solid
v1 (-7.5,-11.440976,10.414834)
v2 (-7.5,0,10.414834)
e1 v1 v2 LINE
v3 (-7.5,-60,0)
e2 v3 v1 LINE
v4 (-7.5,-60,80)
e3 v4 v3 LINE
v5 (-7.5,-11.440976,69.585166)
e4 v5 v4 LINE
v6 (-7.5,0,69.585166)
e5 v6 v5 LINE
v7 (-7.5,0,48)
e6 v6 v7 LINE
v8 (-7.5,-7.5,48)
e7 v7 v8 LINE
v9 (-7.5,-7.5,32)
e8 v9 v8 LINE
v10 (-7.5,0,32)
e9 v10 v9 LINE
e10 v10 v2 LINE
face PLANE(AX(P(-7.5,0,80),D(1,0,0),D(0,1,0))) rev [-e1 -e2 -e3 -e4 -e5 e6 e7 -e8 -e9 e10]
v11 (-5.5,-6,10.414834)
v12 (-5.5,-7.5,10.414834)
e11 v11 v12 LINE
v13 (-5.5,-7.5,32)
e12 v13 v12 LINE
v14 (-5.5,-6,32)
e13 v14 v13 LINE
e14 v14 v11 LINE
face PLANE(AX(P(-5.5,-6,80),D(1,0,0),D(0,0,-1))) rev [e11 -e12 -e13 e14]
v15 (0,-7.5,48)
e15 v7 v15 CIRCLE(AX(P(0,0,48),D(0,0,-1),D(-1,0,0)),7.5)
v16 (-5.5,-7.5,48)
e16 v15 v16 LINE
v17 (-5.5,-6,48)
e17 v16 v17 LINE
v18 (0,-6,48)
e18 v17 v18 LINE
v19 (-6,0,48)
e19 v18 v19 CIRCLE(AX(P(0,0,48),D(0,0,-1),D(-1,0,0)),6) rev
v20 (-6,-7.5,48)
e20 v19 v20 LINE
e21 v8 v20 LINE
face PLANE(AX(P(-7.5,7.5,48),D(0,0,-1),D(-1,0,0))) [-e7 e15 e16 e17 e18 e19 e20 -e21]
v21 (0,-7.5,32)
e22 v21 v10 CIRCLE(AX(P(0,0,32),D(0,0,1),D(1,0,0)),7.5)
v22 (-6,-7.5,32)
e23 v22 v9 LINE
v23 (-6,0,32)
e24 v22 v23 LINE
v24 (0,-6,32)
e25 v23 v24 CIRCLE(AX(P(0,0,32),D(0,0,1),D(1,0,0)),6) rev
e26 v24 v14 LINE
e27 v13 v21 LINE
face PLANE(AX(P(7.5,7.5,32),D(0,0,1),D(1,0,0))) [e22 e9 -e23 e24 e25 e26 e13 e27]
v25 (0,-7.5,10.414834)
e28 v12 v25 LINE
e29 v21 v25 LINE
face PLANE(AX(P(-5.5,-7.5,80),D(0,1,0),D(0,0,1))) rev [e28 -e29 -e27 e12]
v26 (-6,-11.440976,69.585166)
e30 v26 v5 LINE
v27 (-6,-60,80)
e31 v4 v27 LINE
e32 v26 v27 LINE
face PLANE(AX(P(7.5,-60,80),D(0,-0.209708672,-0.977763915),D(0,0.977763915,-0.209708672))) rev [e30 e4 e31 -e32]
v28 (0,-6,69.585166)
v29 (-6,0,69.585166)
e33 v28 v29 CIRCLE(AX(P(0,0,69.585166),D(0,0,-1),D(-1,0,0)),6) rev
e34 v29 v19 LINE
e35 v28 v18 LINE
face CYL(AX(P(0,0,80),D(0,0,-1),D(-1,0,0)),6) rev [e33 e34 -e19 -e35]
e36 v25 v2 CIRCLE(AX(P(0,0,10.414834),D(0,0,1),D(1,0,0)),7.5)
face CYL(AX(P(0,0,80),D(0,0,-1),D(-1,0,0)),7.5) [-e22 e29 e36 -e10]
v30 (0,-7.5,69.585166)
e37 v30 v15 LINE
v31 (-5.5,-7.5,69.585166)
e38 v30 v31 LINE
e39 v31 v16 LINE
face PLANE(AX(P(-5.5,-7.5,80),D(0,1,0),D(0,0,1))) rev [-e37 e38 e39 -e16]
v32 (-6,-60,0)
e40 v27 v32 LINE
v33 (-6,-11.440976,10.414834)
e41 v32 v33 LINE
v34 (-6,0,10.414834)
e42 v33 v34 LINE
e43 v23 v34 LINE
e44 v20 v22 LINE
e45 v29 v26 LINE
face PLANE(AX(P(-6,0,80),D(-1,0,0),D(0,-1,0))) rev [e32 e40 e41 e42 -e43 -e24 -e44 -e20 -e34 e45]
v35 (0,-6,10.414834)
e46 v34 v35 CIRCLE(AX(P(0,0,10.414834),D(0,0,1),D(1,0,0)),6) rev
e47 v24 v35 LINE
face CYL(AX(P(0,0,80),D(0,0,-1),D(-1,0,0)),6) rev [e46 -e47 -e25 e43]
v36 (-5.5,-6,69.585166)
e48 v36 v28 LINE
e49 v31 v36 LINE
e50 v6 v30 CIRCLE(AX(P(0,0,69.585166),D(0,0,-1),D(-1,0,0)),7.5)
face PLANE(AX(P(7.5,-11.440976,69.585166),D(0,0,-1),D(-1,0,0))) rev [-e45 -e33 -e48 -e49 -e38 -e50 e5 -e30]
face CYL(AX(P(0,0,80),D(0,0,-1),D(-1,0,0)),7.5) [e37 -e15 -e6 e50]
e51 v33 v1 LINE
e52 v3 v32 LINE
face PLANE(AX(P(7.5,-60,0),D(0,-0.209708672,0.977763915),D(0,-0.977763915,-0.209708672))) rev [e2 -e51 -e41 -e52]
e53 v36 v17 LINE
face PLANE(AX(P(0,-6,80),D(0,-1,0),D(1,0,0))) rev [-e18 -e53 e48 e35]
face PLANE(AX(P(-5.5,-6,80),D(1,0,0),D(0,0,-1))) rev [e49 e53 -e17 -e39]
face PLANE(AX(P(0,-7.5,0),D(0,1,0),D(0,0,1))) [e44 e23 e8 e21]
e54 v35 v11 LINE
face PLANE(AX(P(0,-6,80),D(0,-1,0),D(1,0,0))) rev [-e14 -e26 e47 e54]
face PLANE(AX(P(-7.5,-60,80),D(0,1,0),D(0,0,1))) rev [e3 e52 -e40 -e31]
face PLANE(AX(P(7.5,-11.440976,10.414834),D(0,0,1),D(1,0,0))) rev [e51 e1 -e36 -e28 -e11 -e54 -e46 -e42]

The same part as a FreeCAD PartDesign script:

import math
import FreeCAD as App
import Part
import Sketcher
from FreeCAD import Vector
Q = App.Units.Quantity

doc = App.newDocument("Part")
params = doc.addObject("Spreadsheet::Sheet", "Params")
for row, (alias, value) in enumerate([
    ("sketch1_radius", "6 mm"),
    ("sketch1_radius2", "7.5 mm"),
    ("sketch1_height", "60 mm"),
    ("sketch1_width", "5.5 mm"),
    ("pad1_length", "80 mm"),
    ("sketch2_width", "15 mm"),
    ("sketch2_height", "16 mm"),
    ("pocket1_length", "15 mm"),
], start=1):
    params.set(f"A{row}", alias)
    params.set(f"B{row}", "=" + value)
    params.setAlias(f"B{row}", alias)

body = doc.addObject("PartDesign::Body", "Body")

# Sketch on XY plane
sketch1 = body.newObject("Sketcher::SketchObject", "Sketch")
sketch1.AttachmentSupport = (doc.getObject("XY_Plane"), [""])
sketch1.MapMode = "FlatFace"
sketch1.addGeometry(Part.LineSegment(Vector(-7.5, -60, 0), Vector(-6, -60, 0)), False)
sketch1.addGeometry(Part.LineSegment(Vector(-6, -60, 0), Vector(-6, 0, 0)), False)
sketch1.addGeometry(Part.ArcOfCircle(Part.Circle(Vector(0, 0, 0), Vector(0, 0, 1), 6), math.radians(-90), math.radians(180)), False)
sketch1.addGeometry(Part.LineSegment(Vector(0, -6, 0), Vector(-5.5, -6, 0)), False)
sketch1.addGeometry(Part.LineSegment(Vector(-5.5, -6, 0), Vector(-5.5, -7.5, 0)), False)
sketch1.addGeometry(Part.LineSegment(Vector(-5.5, -7.5, 0), Vector(0, -7.5, 0)), False)
sketch1.addGeometry(Part.ArcOfCircle(Part.Circle(Vector(0, 0, 0), Vector(0, 0, 1), 7.5), math.radians(-90), math.radians(180)), False)
sketch1.addGeometry(Part.LineSegment(Vector(-7.5, 0, 0), Vector(-7.5, -60, 0)), False)
sketch1.addConstraint(Sketcher.Constraint("Coincident", 0, 2, 1, 1))
sketch1.addConstraint(Sketcher.Constraint("Tangent", 1, 2, 2, 2))
sketch1.addConstraint(Sketcher.Constraint("Tangent", 2, 1, 3, 1))
sketch1.addConstraint(Sketcher.Constraint("Coincident", 3, 2, 4, 1))
sketch1.addConstraint(Sketcher.Constraint("Coincident", 4, 2, 5, 1))
sketch1.addConstraint(Sketcher.Constraint("Tangent", 5, 2, 6, 1))
sketch1.addConstraint(Sketcher.Constraint("Tangent", 6, 2, 7, 1))
sketch1.addConstraint(Sketcher.Constraint("Coincident", 7, 2, 0, 1))
sketch1.addConstraint(Sketcher.Constraint("Horizontal", 0))
sketch1.addConstraint(Sketcher.Constraint("Vertical", 1))
sketch1.addConstraint(Sketcher.Constraint("Horizontal", 3))
sketch1.addConstraint(Sketcher.Constraint("Vertical", 4))
sketch1.addConstraint(Sketcher.Constraint("Horizontal", 5))
sketch1.addConstraint(Sketcher.Constraint("Vertical", 7))
sketch1.addConstraint(Sketcher.Constraint("Coincident", 2, 3, -1, 1))
sketch1.addConstraint(Sketcher.Constraint("Coincident", 6, 3, -1, 1))
sketch1.addConstraint(Sketcher.Constraint("Radius", 2, Q("6 mm")))
sketch1.addConstraint(Sketcher.Constraint("Radius", 6, Q("7.5 mm")))
sketch1.addConstraint(Sketcher.Constraint("DistanceY", 1, 1, 1, 2, Q("60 mm")))
sketch1.addConstraint(Sketcher.Constraint("DistanceX", 3, 2, 3, 1, Q("5.5 mm")))
sketch1.setExpression("Constraints[16]", "Params.sketch1_radius")
sketch1.setExpression("Constraints[17]", "Params.sketch1_radius2")
sketch1.setExpression("Constraints[18]", "Params.sketch1_height")
sketch1.setExpression("Constraints[19]", "Params.sketch1_width")
pad1 = body.newObject("PartDesign::Pad", "Pad")
pad1.Profile = sketch1
pad1.setExpression("Length", "Params.pad1_length")

# Sketch on XZ plane
sketch2 = body.newObject("Sketcher::SketchObject", "Sketch001")
sketch2.AttachmentSupport = (doc.getObject("XZ_Plane"), [""])
sketch2.MapMode = "FlatFace"
sketch2.addGeometry(Part.LineSegment(Vector(8, 32, 0), Vector(-8, 32, 0)), False)
sketch2.addGeometry(Part.LineSegment(Vector(-8, 32, 0), Vector(-8, 48, 0)), False)
sketch2.addGeometry(Part.LineSegment(Vector(-8, 48, 0), Vector(8, 48, 0)), False)
sketch2.addGeometry(Part.LineSegment(Vector(8, 48, 0), Vector(8, 32, 0)), False)
sketch2.addConstraint(Sketcher.Constraint("Coincident", 0, 2, 1, 1))
sketch2.addConstraint(Sketcher.Constraint("Coincident", 1, 2, 2, 1))
sketch2.addConstraint(Sketcher.Constraint("Coincident", 2, 2, 3, 1))
sketch2.addConstraint(Sketcher.Constraint("Coincident", 3, 2, 0, 1))
sketch2.addConstraint(Sketcher.Constraint("Horizontal", 0))
sketch2.addConstraint(Sketcher.Constraint("Vertical", 1))
sketch2.addConstraint(Sketcher.Constraint("Horizontal", 2))
sketch2.addConstraint(Sketcher.Constraint("Vertical", 3))
sketch2.addConstraint(Sketcher.Constraint("DistanceX", 0, 2, 0, 1, Q("15 mm")))
sketch2.addConstraint(Sketcher.Constraint("DistanceY", 1, 1, 1, 2, Q("16 mm")))
sketch2.addConstraint(Sketcher.Constraint("DistanceY", -1, 1, 0, 2, Q("32 mm")))
sketch2.addConstraint(Sketcher.Constraint("DistanceX", 0, 2, -1, 1, Q("7.5 mm")))
sketch2.setExpression("Constraints[8]", "Params.sketch2_width")
sketch2.setExpression("Constraints[9]", "Params.sketch2_height")
pocket1 = body.newObject("PartDesign::Pocket", "Pocket")
pocket1.Profile = sketch2
pocket1.setExpression("Length", "Params.pocket1_length")
pocket1.Midplane = True

# Sketch on YZ plane
sketch3 = body.newObject("Sketcher::SketchObject", "Sketch002")
sketch3.AttachmentSupport = (doc.getObject("YZ_Plane"), [""])
sketch3.MapMode = "FlatFace"
sketch3.AttachmentOffset = App.Placement(Vector(0, 0, -7.5), App.Rotation())
sketch3.addGeometry(Part.LineSegment(Vector(-11, 70, 0), Vector(-60, 80, 0)), False)
sketch3.addGeometry(Part.LineSegment(Vector(-60, 80, 0), Vector(10, 80, 0)), False)
sketch3.addGeometry(Part.LineSegment(Vector(10, 80, 0), Vector(10, 70, 0)), False)
sketch3.addGeometry(Part.LineSegment(Vector(10, 70, 0), Vector(-11, 70, 0)), False)
sketch3.addGeometry(Part.LineSegment(Vector(-11, 10, 0), Vector(10, 10, 0)), False)
sketch3.addGeometry(Part.LineSegment(Vector(10, 10, 0), Vector(10, 0, 0)), False)
sketch3.addGeometry(Part.LineSegment(Vector(10, 0, 0), Vector(-60, 0, 0)), False)
sketch3.addGeometry(Part.LineSegment(Vector(-60, 0, 0), Vector(-11, 10, 0)), False)
sketch3.addConstraint(Sketcher.Constraint("Coincident", 0, 2, 1, 1))
sketch3.addConstraint(Sketcher.Constraint("Coincident", 1, 2, 2, 1))
sketch3.addConstraint(Sketcher.Constraint("Coincident", 2, 2, 3, 1))
sketch3.addConstraint(Sketcher.Constraint("Coincident", 3, 2, 0, 1))
sketch3.addConstraint(Sketcher.Constraint("Coincident", 4, 2, 5, 1))
sketch3.addConstraint(Sketcher.Constraint("Coincident", 5, 2, 6, 1))
sketch3.addConstraint(Sketcher.Constraint("Coincident", 6, 2, 7, 1))
sketch3.addConstraint(Sketcher.Constraint("Coincident", 7, 2, 4, 1))
sketch3.addConstraint(Sketcher.Constraint("Horizontal", 1))
sketch3.addConstraint(Sketcher.Constraint("Vertical", 2))
sketch3.addConstraint(Sketcher.Constraint("Horizontal", 3))
sketch3.addConstraint(Sketcher.Constraint("Horizontal", 4))
sketch3.addConstraint(Sketcher.Constraint("Vertical", 5))
sketch3.addConstraint(Sketcher.Constraint("Horizontal", 6))
sketch3.addConstraint(Sketcher.Constraint("PointOnObject", 5, 2, -1))
sketch3.addConstraint(Sketcher.Constraint("Vertical", 2, 2, 4, 2))
sketch3.addConstraint(Sketcher.Constraint("Vertical", 0, 2, 6, 2))
sketch3.addConstraint(Sketcher.Constraint("Vertical", 3, 2, 7, 2))
sketch3.addConstraint(Sketcher.Constraint("Equal", 2, 5))
sketch3.addConstraint(Sketcher.Constraint("DistanceX", 0, 2, -1, 1, Q("60 mm")))
sketch3.addConstraint(Sketcher.Constraint("DistanceY", -1, 1, 0, 2, Q("80 mm")))
sketch3.addConstraint(Sketcher.Constraint("DistanceX", 3, 2, 3, 1, Q("21.13349 mm")))
sketch3.addConstraint(Sketcher.Constraint("DistanceX", 1, 1, 1, 2, Q("69.692514 mm")))
sketch3.addConstraint(Sketcher.Constraint("DistanceY", 2, 2, 2, 1, Q("10.414834 mm")))
pocket2 = body.newObject("PartDesign::Pocket", "Pocket001")
pocket2.Profile = sketch3
pocket2.Type = "ThroughAll"
pocket2.Reversed = True

doc.recompute()
